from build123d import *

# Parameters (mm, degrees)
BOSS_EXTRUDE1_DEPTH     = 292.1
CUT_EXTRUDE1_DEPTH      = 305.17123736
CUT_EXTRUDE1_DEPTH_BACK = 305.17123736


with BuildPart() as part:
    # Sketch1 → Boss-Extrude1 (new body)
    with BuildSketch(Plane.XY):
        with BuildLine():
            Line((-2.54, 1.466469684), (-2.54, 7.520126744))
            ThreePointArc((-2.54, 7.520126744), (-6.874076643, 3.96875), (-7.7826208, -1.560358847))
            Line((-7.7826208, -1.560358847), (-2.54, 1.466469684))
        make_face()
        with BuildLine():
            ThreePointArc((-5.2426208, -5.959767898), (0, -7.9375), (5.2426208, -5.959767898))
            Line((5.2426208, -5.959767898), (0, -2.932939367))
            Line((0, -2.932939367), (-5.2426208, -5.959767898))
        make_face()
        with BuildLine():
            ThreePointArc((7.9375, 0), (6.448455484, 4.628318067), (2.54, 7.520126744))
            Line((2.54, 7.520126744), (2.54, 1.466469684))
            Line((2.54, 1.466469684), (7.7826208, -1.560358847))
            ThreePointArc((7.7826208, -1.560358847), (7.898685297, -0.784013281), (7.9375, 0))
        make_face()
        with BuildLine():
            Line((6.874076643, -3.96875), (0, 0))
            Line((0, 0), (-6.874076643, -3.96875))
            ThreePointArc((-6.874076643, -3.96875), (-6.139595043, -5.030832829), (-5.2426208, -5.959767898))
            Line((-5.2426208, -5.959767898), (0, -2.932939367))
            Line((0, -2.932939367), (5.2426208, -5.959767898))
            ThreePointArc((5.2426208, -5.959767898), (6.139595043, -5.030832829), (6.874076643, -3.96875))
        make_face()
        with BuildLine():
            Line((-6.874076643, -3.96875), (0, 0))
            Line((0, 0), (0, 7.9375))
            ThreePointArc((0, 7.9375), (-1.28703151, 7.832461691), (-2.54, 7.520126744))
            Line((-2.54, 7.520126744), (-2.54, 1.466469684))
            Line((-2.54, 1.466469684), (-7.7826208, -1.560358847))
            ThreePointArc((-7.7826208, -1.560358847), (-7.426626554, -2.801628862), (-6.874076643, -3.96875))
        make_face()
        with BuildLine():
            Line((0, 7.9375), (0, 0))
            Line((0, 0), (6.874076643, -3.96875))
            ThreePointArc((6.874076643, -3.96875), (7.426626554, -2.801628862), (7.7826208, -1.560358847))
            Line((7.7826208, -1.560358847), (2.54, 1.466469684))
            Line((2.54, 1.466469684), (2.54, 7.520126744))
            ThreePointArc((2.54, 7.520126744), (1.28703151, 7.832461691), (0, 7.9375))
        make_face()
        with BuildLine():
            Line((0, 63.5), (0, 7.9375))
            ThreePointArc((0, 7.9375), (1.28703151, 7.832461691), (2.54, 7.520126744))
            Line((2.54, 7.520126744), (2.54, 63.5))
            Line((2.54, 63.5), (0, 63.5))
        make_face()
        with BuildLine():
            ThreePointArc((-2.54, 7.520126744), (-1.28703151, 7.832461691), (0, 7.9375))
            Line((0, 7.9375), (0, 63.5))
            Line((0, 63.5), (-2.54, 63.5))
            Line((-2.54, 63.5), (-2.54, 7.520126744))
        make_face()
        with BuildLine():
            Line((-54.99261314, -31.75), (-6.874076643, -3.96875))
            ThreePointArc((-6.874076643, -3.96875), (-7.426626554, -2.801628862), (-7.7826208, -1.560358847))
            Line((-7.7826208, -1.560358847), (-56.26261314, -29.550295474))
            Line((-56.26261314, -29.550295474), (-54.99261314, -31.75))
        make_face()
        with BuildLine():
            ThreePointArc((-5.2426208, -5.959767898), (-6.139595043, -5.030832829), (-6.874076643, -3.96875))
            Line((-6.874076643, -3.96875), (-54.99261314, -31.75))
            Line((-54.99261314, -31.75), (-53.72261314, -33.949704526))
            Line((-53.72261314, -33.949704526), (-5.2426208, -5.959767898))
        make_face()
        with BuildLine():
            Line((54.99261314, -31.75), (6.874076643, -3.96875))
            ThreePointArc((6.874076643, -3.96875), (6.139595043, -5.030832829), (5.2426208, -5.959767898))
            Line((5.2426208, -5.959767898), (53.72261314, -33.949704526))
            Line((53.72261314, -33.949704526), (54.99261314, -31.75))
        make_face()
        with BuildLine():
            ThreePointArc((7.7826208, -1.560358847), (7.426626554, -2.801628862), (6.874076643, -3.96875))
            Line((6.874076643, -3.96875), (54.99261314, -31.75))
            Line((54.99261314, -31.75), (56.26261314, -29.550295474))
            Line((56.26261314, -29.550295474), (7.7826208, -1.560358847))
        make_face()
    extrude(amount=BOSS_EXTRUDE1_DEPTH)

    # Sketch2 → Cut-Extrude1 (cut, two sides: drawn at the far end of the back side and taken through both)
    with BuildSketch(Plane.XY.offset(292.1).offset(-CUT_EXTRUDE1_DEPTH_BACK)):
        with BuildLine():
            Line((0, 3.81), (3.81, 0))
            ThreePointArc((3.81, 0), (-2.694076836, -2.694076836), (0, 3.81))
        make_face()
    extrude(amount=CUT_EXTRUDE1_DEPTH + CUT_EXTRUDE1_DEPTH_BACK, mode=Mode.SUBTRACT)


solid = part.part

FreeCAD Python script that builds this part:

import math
import FreeCAD as App
import Part
import Sketcher
from FreeCAD import Vector
Q = App.Units.Quantity

doc = App.newDocument("Part")
body = doc.addObject("PartDesign::Body", "Body")

sketch1 = body.newObject("Sketcher::SketchObject", "Sketch")
sketch1.AttachmentSupport = (doc.getObject("XY_Plane"), [""])
sketch1.MapMode = "FlatFace"
sketch1.addGeometry([
    Part.ArcOfCircle(Part.Circle(Vector(0, 0, 0), Vector(0, 0, 1), 7.9375), math.radians(108.662925), math.radians(191.337075)),
    Part.LineSegment(Vector(-7.782621, -1.560359, 0), Vector(-56.262613, -29.550295, 0)),
    Part.LineSegment(Vector(-56.262613, -29.550295, 0), Vector(-53.722613, -33.949705, 0)),
    Part.LineSegment(Vector(-53.722613, -33.949705, 0), Vector(-5.242621, -5.959768, 0)),
    Part.ArcOfCircle(Part.Circle(Vector(0, 0, 0), Vector(0, 0, 1), 7.9375), math.radians(-131.337075), math.radians(-48.662925)),
    Part.LineSegment(Vector(5.242621, -5.959768, 0), Vector(53.722613, -33.949705, 0)),
    Part.LineSegment(Vector(53.722613, -33.949705, 0), Vector(56.262613, -29.550295, 0)),
    Part.LineSegment(Vector(56.262613, -29.550295, 0), Vector(7.782621, -1.560359, 0)),
    Part.ArcOfCircle(Part.Circle(Vector(0, 0, 0), Vector(0, 0, 1), 7.9375), math.radians(-11.337075), math.radians(0)),
    Part.ArcOfCircle(Part.Circle(Vector(0, 0, 0), Vector(0, 0, 1), 7.9375), math.radians(0), math.radians(71.337075)),
    Part.LineSegment(Vector(2.54, 7.520127, 0), Vector(2.54, 63.5, 0)),
    Part.LineSegment(Vector(2.54, 63.5, 0), Vector(-2.54, 63.5, 0)),
    Part.LineSegment(Vector(-2.54, 63.5, 0), Vector(-2.54, 7.520127, 0)),
], False)
sketch1.addConstraint([
    Sketcher.Constraint("Coincident", 0, 2, 1, 1),
    Sketcher.Constraint("Coincident", 1, 2, 2, 1),
    Sketcher.Constraint("Coincident", 2, 2, 3, 1),
    Sketcher.Constraint("Coincident", 3, 2, 4, 1),
    Sketcher.Constraint("Coincident", 4, 2, 5, 1),
    Sketcher.Constraint("Coincident", 5, 2, 6, 1),
    Sketcher.Constraint("Coincident", 6, 2, 7, 1),
    Sketcher.Constraint("Coincident", 7, 2, 8, 1),
    Sketcher.Constraint("Tangent", 8, 2, 9, 1),
    Sketcher.Constraint("Coincident", 9, 2, 10, 1),
    Sketcher.Constraint("Coincident", 10, 2, 11, 1),
    Sketcher.Constraint("Coincident", 11, 2, 12, 1),
    Sketcher.Constraint("Coincident", 12, 2, 0, 1),
    Sketcher.Constraint("Vertical", 10),
    Sketcher.Constraint("Horizontal", 11),
    Sketcher.Constraint("Vertical", 12),
    Sketcher.Constraint("Coincident", 0, 3, -1, 1),
    Sketcher.Constraint("Coincident", 4, 3, -1, 1),
    Sketcher.Constraint("Coincident", 8, 3, -1, 1),
    Sketcher.Constraint("Equal", 0, 4),
    Sketcher.Constraint("Equal", 4, 8),
    Sketcher.Constraint("Equal", 8, 9),
    Sketcher.Constraint("Symmetric", 2, 2, 5, 2, -2),
    Sketcher.Constraint("Symmetric", 1, 2, 6, 2, -2),
    Sketcher.Constraint("PointOnObject", 8, 2, -1),
    Sketcher.Constraint("Perpendicular", 1, 2),
    Sketcher.Constraint("Perpendicular", 2, 3),
    Sketcher.Constraint("Perpendicular", 5, 6),
    Sketcher.Constraint("Perpendicular", 6, 7),
    Sketcher.Constraint("Horizontal", 9, 2, 12, 2),
    Sketcher.Constraint("Equal", 1, 3),
    Sketcher.Constraint("DistanceX", 11, 2, 11, 1, Q("0.2 in")),
    Sketcher.Constraint("Angle", 1, Q("-150 deg")),
    Sketcher.Constraint("Radius", 0, Q("0.3125 in")),
    Sketcher.Constraint("Distance", 2, Q("0.2 in")),
    Sketcher.Constraint("DistanceY", -1, 1, 10, 2, Q("2.5 in")),
    Sketcher.Constraint("Distance", 1, 55.979873),
])
pad1 = body.newObject("PartDesign::Pad", "Pad")
pad1.Profile = sketch1
pad1.Length = Q("11.5 in")

sketch2 = body.newObject("Sketcher::SketchObject", "Sketch001")
sketch2.AttachmentSupport = (doc.getObject("XY_Plane"), [""])
sketch2.MapMode = "FlatFace"
sketch2.AttachmentOffset = App.Placement(Vector(0, 0, 11.5 * 25.4), App.Rotation())
sketch2.addGeometry([
    Part.LineSegment(Vector(3.81, 0, 0), Vector(0, 3.81, 0)),
    Part.ArcOfCircle(Part.Circle(Vector(0, 0, 0), Vector(0, 0, 1), 3.81), math.radians(90), math.radians(360)),
], False)
sketch2.addConstraint([
    Sketcher.Constraint("Coincident", 0, 1, 1, 2),
    Sketcher.Constraint("Coincident", 1, 1, 0, 2),
    Sketcher.Constraint("Coincident", 1, 3, -1, 1),
    Sketcher.Constraint("PointOnObject", 0, 1, -1),
    Sketcher.Constraint("PointOnObject", 1, 1, -2),
    Sketcher.Constraint("Radius", 1, Q("0.15 in")),
])
pocket1 = body.newObject("PartDesign::Pocket", "Pocket")
pocket1.Profile = sketch2
pocket1.Type = "ThroughAll"
pocket1.Midplane = True

doc.recompute()
